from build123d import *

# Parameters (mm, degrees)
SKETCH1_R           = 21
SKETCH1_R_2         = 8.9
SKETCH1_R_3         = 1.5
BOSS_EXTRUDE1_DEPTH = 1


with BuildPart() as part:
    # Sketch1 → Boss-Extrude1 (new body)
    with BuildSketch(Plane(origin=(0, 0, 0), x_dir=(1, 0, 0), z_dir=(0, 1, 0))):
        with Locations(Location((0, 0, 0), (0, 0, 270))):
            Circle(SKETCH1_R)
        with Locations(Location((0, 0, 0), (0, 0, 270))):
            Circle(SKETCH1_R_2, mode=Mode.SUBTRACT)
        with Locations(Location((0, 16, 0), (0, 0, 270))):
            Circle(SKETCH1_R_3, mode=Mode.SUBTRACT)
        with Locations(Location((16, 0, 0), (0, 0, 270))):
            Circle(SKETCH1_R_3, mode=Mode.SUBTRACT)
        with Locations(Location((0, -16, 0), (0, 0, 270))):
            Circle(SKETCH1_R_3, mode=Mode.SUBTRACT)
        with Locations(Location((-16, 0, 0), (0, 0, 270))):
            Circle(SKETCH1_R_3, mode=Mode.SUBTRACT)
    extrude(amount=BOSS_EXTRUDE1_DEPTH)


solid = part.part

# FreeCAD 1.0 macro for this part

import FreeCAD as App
import Part
import Sketcher

doc = App.newDocument("Part")
body = doc.addObject("PartDesign::Body", "Body")

# Sketch on XZ plane
sketch1 = doc.addObject("Sketcher::SketchObject", "Sketch")
body.addObject(sketch1)
sketch1.AttachmentSupport = (doc.XZ_Plane, [""])
sketch1.MapMode = "FlatFace"
sketch1.addGeometry([
    Part.Circle(App.Vector(0, 0, 0), App.Vector(0, 0, 1), 21),  # 0
    Part.Circle(App.Vector(0, -16, 0), App.Vector(0, 0, 1), 1.5),  # 1
    Part.Circle(App.Vector(-16, 0, 0), App.Vector(0, 0, 1), 1.5),  # 2
    Part.Circle(App.Vector(16, 0, 0), App.Vector(0, 0, 1), 1.5),  # 3
    Part.Circle(App.Vector(0, 0, 0), App.Vector(0, 0, 1), 8.9),  # 4
    Part.Circle(App.Vector(0, 16, 0), App.Vector(0, 0, 1), 1.5),  # 5
], False)
sketch1.addConstraint([
    Sketcher.Constraint("Coincident", 0, 3, -1, 1),
    Sketcher.Constraint("Coincident", 4, 3, -1, 1),
    Sketcher.Constraint("Equal", 1, 2),
    Sketcher.Constraint("Equal", 2, 3),
    Sketcher.Constraint("Equal", 3, 5),
    Sketcher.Constraint("Symmetric", 2, 3, 3, 3, -1, 1),
    Sketcher.Constraint("Symmetric", 1, 3, 5, 3, -1, 1),
    Sketcher.Constraint("PointOnObject", 1, 3, -2),
    Sketcher.Constraint("PointOnObject", 2, 3, -1),
    Sketcher.Constraint("Diameter", 0, 42.0),
    Sketcher.Constraint("Diameter", 1, 3.0),
    Sketcher.Constraint("Diameter", 4, 17.8),
    Sketcher.Constraint("DistanceY", 1, 3, -1, 1, 16.0),
    Sketcher.Constraint("DistanceX", 2, 3, -1, 1, 16.0),
])
pad1 = doc.addObject("PartDesign::Pad", "Pad")
body.addObject(pad1)
pad1.Profile = sketch1
pad1.Length = 1
pad1.Reversed = True

doc.recompute()
